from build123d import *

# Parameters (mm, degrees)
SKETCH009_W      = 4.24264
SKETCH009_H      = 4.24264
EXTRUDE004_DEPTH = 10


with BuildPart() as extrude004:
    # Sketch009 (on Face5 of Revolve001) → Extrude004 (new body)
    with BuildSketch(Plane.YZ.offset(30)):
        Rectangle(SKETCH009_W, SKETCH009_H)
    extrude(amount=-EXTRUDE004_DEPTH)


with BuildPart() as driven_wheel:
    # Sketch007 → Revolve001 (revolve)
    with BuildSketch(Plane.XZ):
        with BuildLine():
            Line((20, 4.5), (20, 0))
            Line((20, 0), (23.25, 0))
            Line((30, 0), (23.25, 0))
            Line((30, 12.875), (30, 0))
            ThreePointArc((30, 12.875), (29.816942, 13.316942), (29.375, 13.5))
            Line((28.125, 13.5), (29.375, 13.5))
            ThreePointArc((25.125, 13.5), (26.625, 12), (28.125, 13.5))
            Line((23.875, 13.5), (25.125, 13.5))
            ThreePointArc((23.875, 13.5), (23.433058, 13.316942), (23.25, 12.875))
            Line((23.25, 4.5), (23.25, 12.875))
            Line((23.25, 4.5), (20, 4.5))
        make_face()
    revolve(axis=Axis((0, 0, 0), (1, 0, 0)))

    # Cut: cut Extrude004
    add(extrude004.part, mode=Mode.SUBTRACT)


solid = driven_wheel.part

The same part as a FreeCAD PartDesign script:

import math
import FreeCAD as App
import Part
import Sketcher
Q = App.Units.Quantity

doc = App.newDocument("Part")
body = doc.addObject("PartDesign::Body", "Body")

# Sketch on YZ plane
sketch1 = doc.addObject("Sketcher::SketchObject", "Sketch")
body.addObject(sketch1)
sketch1.AttachmentSupport = (doc.YZ_Plane, [""])
sketch1.MapMode = "FlatFace"
sketch1.AttachmentOffset = App.Placement(App.Vector(0, 0, 30), App.Rotation())
sketch1.addGeometry(Part.LineSegment(App.Vector(-2.1, 2.1, 0), App.Vector(-2.1, -2.1, 0)), False)
sketch1.addGeometry(Part.LineSegment(App.Vector(-2.1, -2.1, 0), App.Vector(2.1, -2.1, 0)), False)
sketch1.addGeometry(Part.LineSegment(App.Vector(2.1, -2.1, 0), App.Vector(2.1, 2.1, 0)), False)
sketch1.addGeometry(Part.LineSegment(App.Vector(2.1, 2.1, 0), App.Vector(-2.1, 2.1, 0)), False)
sketch1.addConstraint(Sketcher.Constraint("Coincident", 0, 2, 1, 1))
sketch1.addConstraint(Sketcher.Constraint("Coincident", 1, 2, 2, 1))
sketch1.addConstraint(Sketcher.Constraint("Coincident", 2, 2, 3, 1))
sketch1.addConstraint(Sketcher.Constraint("Coincident", 3, 2, 0, 1))
sketch1.addConstraint(Sketcher.Constraint("Vertical", 0))
sketch1.addConstraint(Sketcher.Constraint("Horizontal", 1))
sketch1.addConstraint(Sketcher.Constraint("Vertical", 2))
sketch1.addConstraint(Sketcher.Constraint("Horizontal", 3))
sketch1.addConstraint(Sketcher.Constraint("Symmetric", 0, 2, 2, 2, -1, 1))
sketch1.addConstraint(Sketcher.Constraint("Equal", 3, 0))
sketch1.addConstraint(Sketcher.Constraint("DistanceX", 1, 1, 1, 2, Q("4.24264 mm")))
pad1 = doc.addObject("PartDesign::Pad", "Pad")
body.addObject(pad1)
pad1.Profile = sketch1
pad1.Length = 10
pad1.Reversed = True
body2 = doc.addObject("PartDesign::Body", "Body001")

# Sketch on XZ plane
sketch2 = doc.addObject("Sketcher::SketchObject", "Sketch001")
body2.addObject(sketch2)
sketch2.AttachmentSupport = (doc.getObject("XZ_Plane001"), [""])
sketch2.MapMode = "FlatFace"
sketch2.addGeometry(Part.LineSegment(App.Vector(20, 4.5, 0), App.Vector(20, 0, 0)), False)
sketch2.addGeometry(Part.LineSegment(App.Vector(20, 0, 0), App.Vector(30, 0, 0)), False)
sketch2.addGeometry(Part.LineSegment(App.Vector(30, 0, 0), App.Vector(30, 12.9, 0)), False)
sketch2.addGeometry(Part.ArcOfCircle(Part.Circle(App.Vector(29.4, 12.9, 0), App.Vector(0, 0, 1), 0.6), math.radians(0), math.radians(90)), False)
sketch2.addGeometry(Part.LineSegment(App.Vector(29.4, 13.5, 0), App.Vector(28.1, 13.5, 0)), False)
sketch2.addGeometry(Part.ArcOfCircle(Part.Circle(App.Vector(26.6, 13.5, 0), App.Vector(0, 0, 1), 1.5), math.radians(180), math.radians(360)), False)
sketch2.addGeometry(Part.LineSegment(App.Vector(25.1, 13.5, 0), App.Vector(23.9, 13.5, 0)), False)
sketch2.addGeometry(Part.ArcOfCircle(Part.Circle(App.Vector(23.9, 12.9, 0), App.Vector(0, 0, 1), 0.6), math.radians(90), math.radians(180)), False)
sketch2.addGeometry(Part.LineSegment(App.Vector(23.2, 12.9, 0), App.Vector(23.2, 4.5, 0)), False)
sketch2.addGeometry(Part.LineSegment(App.Vector(23.2, 4.5, 0), App.Vector(20, 4.5, 0)), False)
sketch2.addConstraint(Sketcher.Constraint("Coincident", 0, 2, 1, 1))
sketch2.addConstraint(Sketcher.Constraint("Coincident", 1, 2, 2, 1))
sketch2.addConstraint(Sketcher.Constraint("Tangent", 2, 2, 3, 1))
sketch2.addConstraint(Sketcher.Constraint("Tangent", 3, 2, 4, 1))
sketch2.addConstraint(Sketcher.Constraint("Coincident", 4, 2, 5, 2))
sketch2.addConstraint(Sketcher.Constraint("Coincident", 5, 1, 6, 1))
sketch2.addConstraint(Sketcher.Constraint("Tangent", 6, 2, 7, 1))
sketch2.addConstraint(Sketcher.Constraint("Tangent", 7, 2, 8, 1))
sketch2.addConstraint(Sketcher.Constraint("Coincident", 8, 2, 9, 1))
sketch2.addConstraint(Sketcher.Constraint("Coincident", 9, 2, 0, 1))
sketch2.addConstraint(Sketcher.Constraint("Vertical", 0))
sketch2.addConstraint(Sketcher.Constraint("Horizontal", 1))
sketch2.addConstraint(Sketcher.Constraint("Vertical", 2))
sketch2.addConstraint(Sketcher.Constraint("Horizontal", 4))
sketch2.addConstraint(Sketcher.Constraint("Horizontal", 6))
sketch2.addConstraint(Sketcher.Constraint("Vertical", 8))
sketch2.addConstraint(Sketcher.Constraint("Horizontal", 9))
sketch2.addConstraint(Sketcher.Constraint("Equal", 3, 7))
sketch2.addConstraint(Sketcher.Constraint("PointOnObject", 0, 2, -1))
sketch2.addConstraint(Sketcher.Constraint("Horizontal", 3, 3, 7, 3))
sketch2.addConstraint(Sketcher.Constraint("Horizontal", 5, 3, 3, 2))
sketch2.addConstraint(Sketcher.Constraint("Equal", 4, 6))
sketch2.addConstraint(Sketcher.Constraint("Radius", 5, Q("1.5 mm")))
sketch2.addConstraint(Sketcher.Constraint("DistanceX", 1, 1, 1, 2, Q("10 mm")))
sketch2.addConstraint(Sketcher.Constraint("DistanceY", 0, 2, 0, 1, Q("4.5 mm")))
sketch2.addConstraint(Sketcher.Constraint("DistanceX", -1, 1, 0, 2, Q("20 mm")))
sketch2.addConstraint(Sketcher.Constraint("Radius", 3, Q("0.624999 mm")))
sketch2.addConstraint(Sketcher.Constraint("DistanceY", 8, 2, 6, 2, Q("9 mm")))
sketch2.addConstraint(Sketcher.Constraint("DistanceX", 4, 2, 4, 1, Q("1.25 mm")))
revolution = doc.addObject("PartDesign::Revolution", "Revolution")
body2.addObject(revolution)
revolution.Profile = sketch2
revolution.ReferenceAxis = (sketch2, ["H_Axis"])
revolution.Angle = 360
doc.recompute()

boolean = doc.addObject("PartDesign::Boolean", "Boolean")
body2.addObject(boolean)
boolean.Type = "Cut"
boolean.addObjects([body])

doc.recompute()
